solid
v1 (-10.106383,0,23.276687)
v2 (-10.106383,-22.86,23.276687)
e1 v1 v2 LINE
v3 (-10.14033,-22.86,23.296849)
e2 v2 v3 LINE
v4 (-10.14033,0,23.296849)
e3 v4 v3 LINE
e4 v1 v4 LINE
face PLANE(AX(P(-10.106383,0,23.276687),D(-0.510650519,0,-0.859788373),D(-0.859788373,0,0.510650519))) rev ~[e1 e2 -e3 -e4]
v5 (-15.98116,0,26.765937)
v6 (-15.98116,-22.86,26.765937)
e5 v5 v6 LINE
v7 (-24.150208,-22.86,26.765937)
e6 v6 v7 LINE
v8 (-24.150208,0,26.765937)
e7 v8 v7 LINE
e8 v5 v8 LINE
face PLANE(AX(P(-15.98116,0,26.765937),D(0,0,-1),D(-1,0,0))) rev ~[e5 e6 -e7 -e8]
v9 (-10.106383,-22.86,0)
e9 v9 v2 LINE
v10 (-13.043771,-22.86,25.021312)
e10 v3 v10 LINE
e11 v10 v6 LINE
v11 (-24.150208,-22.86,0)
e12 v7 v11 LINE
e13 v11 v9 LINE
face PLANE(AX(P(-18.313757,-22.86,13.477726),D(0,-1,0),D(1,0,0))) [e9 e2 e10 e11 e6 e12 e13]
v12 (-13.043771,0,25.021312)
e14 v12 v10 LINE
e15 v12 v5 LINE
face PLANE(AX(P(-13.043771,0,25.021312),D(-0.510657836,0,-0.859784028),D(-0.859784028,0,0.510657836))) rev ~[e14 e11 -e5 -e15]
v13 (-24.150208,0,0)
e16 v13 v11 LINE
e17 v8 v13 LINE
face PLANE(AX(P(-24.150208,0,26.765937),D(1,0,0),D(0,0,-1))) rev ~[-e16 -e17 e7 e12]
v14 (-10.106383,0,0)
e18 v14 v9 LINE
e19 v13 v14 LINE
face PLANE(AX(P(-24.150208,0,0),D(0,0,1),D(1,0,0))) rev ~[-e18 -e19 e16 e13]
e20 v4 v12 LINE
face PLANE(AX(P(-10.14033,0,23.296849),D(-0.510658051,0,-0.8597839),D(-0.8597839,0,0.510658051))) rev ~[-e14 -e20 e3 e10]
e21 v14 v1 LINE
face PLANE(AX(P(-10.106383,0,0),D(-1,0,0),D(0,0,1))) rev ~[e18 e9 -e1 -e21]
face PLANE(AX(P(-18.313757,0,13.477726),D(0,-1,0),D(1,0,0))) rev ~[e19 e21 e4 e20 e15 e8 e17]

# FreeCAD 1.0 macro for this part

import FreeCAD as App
import Part
import Sketcher
from FreeCAD import Vector
Q = App.Units.Quantity


def add_polygon(sketch, points):
    """Adds a closed chain of lines whose ends are joined by coincident constraints."""
    first, n = sketch.GeometryCount, len(points)
    for a, b in zip(points, points[1:] + points[:1]):
        sketch.addGeometry(Part.LineSegment(App.Vector(*a, 0), App.Vector(*b, 0)), False)
    for i in range(n):
        sketch.addConstraint(Sketcher.Constraint("Coincident", first + i, 2, first + (i + 1) % n, 1))

doc = App.newDocument("Part")
body = doc.addObject("PartDesign::Body", "Body")

sketch1 = body.newObject("Sketcher::SketchObject", "Sketch")
sketch1.AttachmentSupport = (doc.getObject("XZ_Plane"), [""])
sketch1.MapMode = "FlatFace"
add_polygon(sketch1, [(-24.15, 26.766), (-24.15, 0), (-10.106, 0), (-10.106, 23.277), (-10.14, 23.297), (-13.044, 25.021), (-15.981, 26.766)])
sketch1.addConstraint(Sketcher.Constraint("Vertical", 0))
sketch1.addConstraint(Sketcher.Constraint("Horizontal", 1))
sketch1.addConstraint(Sketcher.Constraint("Vertical", 2))
sketch1.addConstraint(Sketcher.Constraint("Horizontal", 6))
sketch1.addConstraint(Sketcher.Constraint("PointOnObject", 0, 2, -1))
sketch1.addConstraint(Sketcher.Constraint("Parallel", 4, 5))
sketch1.addConstraint(Sketcher.Constraint("DistanceX", 1, 1, 1, 2, 14.043825))
sketch1.addConstraint(Sketcher.Constraint("DistanceX", 6, 2, 6, 1, 8.169048))
sketch1.addConstraint(Sketcher.Constraint("DistanceY", 0, 2, 0, 1, 26.765937))
sketch1.addConstraint(Sketcher.Constraint("DistanceY", 2, 1, 2, 2, 23.276687))
sketch1.addConstraint(Sketcher.Constraint("DistanceX", 3, 2, -1, 1, 10.14033))
sketch1.addConstraint(Sketcher.Constraint("DistanceY", -1, 1, 3, 2, 23.296849))
sketch1.addConstraint(Sketcher.Constraint("DistanceX", 4, 2, -1, 1, 13.043771))
sketch1.addConstraint(Sketcher.Constraint("DistanceX", 5, 2, -1, 1, 15.98116))
pad1 = body.newObject("PartDesign::Pad", "Pad")
pad1.Profile = sketch1
pad1.Length = Q("0.9 in")

doc.recompute()
